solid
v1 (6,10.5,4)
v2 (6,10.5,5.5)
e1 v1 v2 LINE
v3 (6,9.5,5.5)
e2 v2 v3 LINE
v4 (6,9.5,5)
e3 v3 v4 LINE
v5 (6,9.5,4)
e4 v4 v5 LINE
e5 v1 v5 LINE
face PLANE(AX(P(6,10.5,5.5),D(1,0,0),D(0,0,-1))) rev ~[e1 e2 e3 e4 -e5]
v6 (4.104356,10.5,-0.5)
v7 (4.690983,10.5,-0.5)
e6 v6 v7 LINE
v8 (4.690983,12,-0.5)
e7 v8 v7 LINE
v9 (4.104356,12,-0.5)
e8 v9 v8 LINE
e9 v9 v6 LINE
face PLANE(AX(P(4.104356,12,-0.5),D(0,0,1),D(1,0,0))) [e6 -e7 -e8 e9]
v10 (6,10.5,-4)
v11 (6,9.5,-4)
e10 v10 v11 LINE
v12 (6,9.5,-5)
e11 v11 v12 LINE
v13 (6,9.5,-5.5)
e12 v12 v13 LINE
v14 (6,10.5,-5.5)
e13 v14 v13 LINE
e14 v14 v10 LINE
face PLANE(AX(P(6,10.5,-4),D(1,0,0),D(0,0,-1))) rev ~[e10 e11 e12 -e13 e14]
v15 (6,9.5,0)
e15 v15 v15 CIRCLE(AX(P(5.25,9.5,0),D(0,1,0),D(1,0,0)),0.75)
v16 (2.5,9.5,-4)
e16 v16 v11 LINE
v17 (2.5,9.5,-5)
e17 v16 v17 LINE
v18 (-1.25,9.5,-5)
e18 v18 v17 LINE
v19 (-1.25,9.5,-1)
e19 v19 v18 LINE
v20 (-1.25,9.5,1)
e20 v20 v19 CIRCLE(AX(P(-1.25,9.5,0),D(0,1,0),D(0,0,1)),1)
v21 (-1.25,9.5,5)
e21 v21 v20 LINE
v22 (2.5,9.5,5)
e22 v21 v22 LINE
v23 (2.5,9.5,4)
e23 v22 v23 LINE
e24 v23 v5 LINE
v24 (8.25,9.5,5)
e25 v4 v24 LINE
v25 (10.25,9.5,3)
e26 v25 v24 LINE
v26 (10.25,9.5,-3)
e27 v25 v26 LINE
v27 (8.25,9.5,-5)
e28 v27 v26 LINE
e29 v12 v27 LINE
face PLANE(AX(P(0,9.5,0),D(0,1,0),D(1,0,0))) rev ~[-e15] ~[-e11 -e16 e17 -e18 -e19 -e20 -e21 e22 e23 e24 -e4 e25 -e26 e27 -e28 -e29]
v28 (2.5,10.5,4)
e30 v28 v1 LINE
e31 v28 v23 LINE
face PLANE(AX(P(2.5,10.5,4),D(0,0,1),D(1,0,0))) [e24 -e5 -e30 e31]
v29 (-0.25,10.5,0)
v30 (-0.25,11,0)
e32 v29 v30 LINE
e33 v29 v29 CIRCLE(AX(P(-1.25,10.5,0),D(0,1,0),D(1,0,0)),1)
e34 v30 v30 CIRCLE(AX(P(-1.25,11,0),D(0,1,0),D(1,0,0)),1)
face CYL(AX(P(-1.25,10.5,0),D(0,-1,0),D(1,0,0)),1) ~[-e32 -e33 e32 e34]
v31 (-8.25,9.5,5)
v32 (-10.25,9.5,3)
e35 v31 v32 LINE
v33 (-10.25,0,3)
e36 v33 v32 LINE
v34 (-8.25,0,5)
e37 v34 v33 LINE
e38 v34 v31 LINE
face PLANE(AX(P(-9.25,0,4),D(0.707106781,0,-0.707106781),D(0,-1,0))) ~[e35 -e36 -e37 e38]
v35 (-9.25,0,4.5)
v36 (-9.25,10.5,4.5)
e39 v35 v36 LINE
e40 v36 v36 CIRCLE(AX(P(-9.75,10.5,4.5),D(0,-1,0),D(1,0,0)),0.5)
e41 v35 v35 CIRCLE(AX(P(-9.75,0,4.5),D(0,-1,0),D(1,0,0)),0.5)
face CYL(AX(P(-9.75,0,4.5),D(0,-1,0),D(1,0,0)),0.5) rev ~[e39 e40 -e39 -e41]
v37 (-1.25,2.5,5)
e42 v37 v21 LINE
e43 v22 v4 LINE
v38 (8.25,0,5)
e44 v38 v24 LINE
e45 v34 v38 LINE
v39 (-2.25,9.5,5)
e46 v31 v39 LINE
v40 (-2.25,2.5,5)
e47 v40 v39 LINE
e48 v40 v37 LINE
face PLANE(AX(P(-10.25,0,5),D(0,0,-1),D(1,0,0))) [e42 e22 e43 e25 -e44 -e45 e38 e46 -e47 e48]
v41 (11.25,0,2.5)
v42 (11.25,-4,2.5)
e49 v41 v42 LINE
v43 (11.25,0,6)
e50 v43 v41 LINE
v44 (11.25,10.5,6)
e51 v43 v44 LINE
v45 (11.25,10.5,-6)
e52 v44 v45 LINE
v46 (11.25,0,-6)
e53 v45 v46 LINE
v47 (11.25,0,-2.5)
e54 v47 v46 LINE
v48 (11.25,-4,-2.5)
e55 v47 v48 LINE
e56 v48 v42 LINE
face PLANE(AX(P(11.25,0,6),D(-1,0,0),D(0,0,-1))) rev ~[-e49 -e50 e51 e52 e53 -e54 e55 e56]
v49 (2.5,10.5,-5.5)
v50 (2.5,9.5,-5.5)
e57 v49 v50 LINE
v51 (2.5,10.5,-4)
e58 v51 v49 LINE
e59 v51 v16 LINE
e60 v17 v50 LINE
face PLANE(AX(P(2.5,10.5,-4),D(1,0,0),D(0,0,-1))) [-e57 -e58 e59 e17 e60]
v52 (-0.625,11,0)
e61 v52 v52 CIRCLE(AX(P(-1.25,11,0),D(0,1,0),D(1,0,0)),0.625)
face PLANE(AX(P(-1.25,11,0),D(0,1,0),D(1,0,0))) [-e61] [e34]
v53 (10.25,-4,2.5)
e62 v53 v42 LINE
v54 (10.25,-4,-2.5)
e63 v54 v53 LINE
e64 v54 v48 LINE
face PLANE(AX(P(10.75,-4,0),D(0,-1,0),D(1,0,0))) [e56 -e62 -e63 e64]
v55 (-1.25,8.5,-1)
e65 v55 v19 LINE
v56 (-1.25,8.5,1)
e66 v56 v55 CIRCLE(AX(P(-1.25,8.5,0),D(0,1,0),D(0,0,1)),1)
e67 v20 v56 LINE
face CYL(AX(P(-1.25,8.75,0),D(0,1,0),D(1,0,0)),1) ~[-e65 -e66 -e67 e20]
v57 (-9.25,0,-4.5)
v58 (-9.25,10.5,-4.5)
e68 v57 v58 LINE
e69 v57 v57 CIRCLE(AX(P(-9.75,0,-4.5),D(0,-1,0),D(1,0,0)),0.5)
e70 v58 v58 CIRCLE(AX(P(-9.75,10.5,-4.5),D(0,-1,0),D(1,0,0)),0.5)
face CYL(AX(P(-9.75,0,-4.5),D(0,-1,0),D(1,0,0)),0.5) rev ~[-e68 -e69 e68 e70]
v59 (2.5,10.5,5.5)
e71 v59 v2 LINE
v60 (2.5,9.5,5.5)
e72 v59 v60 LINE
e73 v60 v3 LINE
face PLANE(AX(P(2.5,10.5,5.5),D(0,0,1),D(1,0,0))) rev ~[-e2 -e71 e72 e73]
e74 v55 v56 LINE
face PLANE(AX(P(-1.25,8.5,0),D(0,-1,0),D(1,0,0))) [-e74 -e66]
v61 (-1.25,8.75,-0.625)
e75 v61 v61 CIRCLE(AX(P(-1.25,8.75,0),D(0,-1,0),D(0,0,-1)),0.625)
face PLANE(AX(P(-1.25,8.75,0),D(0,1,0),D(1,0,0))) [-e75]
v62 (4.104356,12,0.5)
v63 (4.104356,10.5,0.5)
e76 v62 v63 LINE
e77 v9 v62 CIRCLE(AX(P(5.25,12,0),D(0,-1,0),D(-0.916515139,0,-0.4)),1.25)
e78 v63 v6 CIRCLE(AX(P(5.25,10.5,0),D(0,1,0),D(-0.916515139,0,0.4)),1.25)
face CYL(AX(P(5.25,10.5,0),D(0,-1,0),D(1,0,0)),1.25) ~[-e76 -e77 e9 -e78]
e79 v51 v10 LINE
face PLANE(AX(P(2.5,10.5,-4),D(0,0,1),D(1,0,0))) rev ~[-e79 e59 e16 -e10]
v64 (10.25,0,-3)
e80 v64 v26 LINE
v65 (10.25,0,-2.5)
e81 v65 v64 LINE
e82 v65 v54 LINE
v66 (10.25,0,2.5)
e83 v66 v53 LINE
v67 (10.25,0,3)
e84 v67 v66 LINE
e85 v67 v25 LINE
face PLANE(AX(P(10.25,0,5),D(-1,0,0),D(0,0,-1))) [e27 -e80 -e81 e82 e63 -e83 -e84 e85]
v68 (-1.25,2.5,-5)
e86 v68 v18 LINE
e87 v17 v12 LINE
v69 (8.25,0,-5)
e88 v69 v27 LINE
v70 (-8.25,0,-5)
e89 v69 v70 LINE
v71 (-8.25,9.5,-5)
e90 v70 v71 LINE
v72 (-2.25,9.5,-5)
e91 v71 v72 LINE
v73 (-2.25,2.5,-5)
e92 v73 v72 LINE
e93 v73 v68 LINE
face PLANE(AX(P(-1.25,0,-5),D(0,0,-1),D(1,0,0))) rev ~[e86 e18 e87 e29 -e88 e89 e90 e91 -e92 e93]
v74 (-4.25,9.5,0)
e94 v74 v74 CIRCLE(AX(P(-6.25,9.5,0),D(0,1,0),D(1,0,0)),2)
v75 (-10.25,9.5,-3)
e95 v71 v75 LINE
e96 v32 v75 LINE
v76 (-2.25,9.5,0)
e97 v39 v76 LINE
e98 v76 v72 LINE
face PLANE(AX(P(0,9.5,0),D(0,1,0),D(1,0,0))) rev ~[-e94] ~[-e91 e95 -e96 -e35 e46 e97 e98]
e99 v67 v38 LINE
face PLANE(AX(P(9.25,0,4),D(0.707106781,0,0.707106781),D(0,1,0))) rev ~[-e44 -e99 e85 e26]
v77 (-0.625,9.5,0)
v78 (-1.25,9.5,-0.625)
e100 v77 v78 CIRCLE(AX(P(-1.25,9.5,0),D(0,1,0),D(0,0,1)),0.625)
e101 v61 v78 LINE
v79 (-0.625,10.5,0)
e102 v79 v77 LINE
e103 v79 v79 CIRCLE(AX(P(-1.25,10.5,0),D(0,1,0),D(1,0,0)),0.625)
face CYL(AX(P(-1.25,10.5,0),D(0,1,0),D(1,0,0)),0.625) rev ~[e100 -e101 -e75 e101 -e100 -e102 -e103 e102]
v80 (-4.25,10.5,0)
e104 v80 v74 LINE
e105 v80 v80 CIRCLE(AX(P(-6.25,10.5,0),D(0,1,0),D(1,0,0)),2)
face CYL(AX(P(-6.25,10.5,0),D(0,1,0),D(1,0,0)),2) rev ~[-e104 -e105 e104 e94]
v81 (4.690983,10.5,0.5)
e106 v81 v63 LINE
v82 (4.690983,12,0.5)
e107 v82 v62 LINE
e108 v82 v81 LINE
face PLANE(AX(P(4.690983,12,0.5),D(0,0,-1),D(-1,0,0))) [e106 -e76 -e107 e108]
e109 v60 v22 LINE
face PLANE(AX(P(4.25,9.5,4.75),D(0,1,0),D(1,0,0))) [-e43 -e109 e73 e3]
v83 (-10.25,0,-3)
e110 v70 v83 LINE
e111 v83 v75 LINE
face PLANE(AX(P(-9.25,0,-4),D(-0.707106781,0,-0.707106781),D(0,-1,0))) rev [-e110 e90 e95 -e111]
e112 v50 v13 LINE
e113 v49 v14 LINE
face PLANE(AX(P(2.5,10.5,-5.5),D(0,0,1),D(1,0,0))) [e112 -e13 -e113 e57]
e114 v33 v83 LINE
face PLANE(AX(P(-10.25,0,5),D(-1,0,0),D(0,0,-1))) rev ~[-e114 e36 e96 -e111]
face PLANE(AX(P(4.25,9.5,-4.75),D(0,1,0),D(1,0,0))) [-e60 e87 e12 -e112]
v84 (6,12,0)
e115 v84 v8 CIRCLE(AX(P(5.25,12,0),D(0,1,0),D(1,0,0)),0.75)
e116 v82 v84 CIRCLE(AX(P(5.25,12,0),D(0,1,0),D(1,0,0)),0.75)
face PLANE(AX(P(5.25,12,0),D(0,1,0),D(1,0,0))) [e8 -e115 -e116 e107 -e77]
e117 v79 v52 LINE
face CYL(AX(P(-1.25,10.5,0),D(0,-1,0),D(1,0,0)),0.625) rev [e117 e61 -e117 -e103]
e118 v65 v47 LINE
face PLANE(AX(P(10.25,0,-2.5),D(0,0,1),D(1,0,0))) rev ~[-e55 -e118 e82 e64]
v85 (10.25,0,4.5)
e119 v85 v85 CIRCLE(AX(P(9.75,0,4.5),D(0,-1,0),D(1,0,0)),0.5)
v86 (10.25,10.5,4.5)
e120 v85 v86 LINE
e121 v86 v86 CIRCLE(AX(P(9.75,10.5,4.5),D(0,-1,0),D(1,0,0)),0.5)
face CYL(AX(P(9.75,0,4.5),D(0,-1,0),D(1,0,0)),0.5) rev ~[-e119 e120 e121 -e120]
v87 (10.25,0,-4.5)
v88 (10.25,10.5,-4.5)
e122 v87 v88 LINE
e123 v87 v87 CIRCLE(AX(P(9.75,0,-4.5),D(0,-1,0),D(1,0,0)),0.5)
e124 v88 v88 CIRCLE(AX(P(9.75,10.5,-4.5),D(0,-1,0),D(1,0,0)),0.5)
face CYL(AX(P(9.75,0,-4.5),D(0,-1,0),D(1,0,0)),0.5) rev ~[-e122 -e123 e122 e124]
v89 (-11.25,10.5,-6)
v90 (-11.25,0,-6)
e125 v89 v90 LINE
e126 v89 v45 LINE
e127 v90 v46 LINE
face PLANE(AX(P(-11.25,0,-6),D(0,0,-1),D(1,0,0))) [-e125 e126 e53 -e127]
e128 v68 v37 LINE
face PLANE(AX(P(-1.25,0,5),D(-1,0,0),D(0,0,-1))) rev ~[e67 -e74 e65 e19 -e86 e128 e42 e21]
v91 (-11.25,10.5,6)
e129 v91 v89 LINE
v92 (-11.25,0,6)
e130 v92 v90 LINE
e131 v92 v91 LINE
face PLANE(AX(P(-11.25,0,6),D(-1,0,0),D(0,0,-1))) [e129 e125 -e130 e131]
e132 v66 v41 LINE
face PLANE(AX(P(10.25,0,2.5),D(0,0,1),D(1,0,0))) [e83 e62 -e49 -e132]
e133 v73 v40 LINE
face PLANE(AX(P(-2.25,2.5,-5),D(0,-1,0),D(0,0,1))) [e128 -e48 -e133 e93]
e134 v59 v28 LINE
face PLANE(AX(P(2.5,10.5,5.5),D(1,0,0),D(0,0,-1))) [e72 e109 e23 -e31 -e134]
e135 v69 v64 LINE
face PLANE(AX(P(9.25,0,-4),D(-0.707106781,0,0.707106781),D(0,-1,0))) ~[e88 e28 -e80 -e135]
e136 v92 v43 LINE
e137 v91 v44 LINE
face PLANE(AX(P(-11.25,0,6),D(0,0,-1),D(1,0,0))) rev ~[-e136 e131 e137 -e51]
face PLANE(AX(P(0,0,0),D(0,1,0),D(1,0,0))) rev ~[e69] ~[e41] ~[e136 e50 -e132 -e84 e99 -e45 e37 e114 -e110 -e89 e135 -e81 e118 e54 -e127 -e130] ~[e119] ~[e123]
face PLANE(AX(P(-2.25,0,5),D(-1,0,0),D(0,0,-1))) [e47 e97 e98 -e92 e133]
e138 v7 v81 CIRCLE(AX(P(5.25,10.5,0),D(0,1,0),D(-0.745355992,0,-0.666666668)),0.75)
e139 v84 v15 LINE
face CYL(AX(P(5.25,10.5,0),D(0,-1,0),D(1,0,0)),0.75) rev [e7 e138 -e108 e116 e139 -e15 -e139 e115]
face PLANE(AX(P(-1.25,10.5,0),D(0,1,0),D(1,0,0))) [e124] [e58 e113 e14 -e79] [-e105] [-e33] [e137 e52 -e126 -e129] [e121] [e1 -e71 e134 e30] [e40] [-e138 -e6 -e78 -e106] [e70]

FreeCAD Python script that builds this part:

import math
import FreeCAD as App
import Part
import Sketcher


def edges_at(feature, points):
    """Names of the edges that pass closest to the given points."""
    edges = feature.Shape.Edges
    near = lambda p: min(range(len(edges)), key=lambda i: edges[i].distToShape(Part.Vertex(*p))[0])
    return sorted({f"Edge{near(p) + 1}" for p in points})

doc = App.newDocument("Part")
params = doc.addObject("Spreadsheet::Sheet", "Params")
for row, (alias, value) in enumerate([
    ("sketch1_width", "8 mm"),
    ("sketch1_height", "12 mm"),
    ("sketch1_height2", "10 mm"),
    ("sketch1_width2", "22.5 mm"),
    ("sketch1_width3", "11.5 mm"),
    ("pad1_length", "10.5 mm"),
    ("sketch2_diameter", "4 mm"),
    ("sketch2_diameter2", "1.5 mm"),
    ("sketch2_height", "12 mm"),
    ("sketch2_width", "22.5 mm"),
    ("sketch2_width2", "3.5 mm"),
    ("pad2_length", "1 mm"),
    ("sketch3_width", "3.5 mm"),
    ("sketch3_height", "1.5 mm"),
    ("pocket1_length", "1 mm"),
    ("sketch4_height", "10 mm"),
    ("sketch4_width", "2.5 mm"),
    ("pocket2_length", "1 mm"),
    ("chamfer_size", "2 mm"),
    ("sketch5_diameter", "1 mm"),
    ("sketch6_width", "1 mm"),
    ("sketch6_height", "5 mm"),
    ("pad3_length", "4 mm"),
    ("sketch7_diameter", "2 mm"),
    ("sketch7_diameter2", "1.25 mm"),
    ("pad4_length", "1.75 mm"),
    ("sketch8_diameter", "1.25 mm"),
    ("pocket4_length", "1.75 mm"),
    ("sketch9_diameter", "2 mm"),
    ("pad5_length", "0.25 mm"),
    ("sketch10_diameter", "2 mm"),
    ("sketch10_diameter2", "1.25 mm"),
    ("pad6_length", "0.5 mm"),
    ("sketch11_diameter", "2.5 mm"),
    ("sketch11_diameter2", "1.5 mm"),
    ("pad7_length", "1.5 mm"),
    ("sketch12_radius", "1.25 mm"),
    ("sketch12_radius2", "0.75 mm"),
    ("pocket5_length", "1.5 mm"),
], start=1):
    params.set(f"A{row}", alias)
    params.set(f"B{row}", "=" + value)
    params.setAlias(f"B{row}", alias)

body = doc.addObject("PartDesign::Body", "Body")

# Sketch on XZ plane
sketch1 = doc.addObject("Sketcher::SketchObject", "Sketch")
body.addObject(sketch1)
sketch1.AttachmentSupport = (doc.XZ_Plane, [""])
sketch1.MapMode = "FlatFace"
sketch1.addGeometry(Part.LineSegment(App.Vector(-11, -6, 0), App.Vector(-11, 6, 0)), False)
sketch1.addGeometry(Part.LineSegment(App.Vector(-11, 6, 0), App.Vector(11, 6, 0)), False)
sketch1.addGeometry(Part.LineSegment(App.Vector(11, 6, 0), App.Vector(11, -6, 0)), False)
sketch1.addGeometry(Part.LineSegment(App.Vector(11, -6, 0), App.Vector(-11, -6, 0)), False)
sketch1.addGeometry(Part.LineSegment(App.Vector(-2, 5, 0), App.Vector(-10, 5, 0)), False)
sketch1.addGeometry(Part.LineSegment(App.Vector(-10, 5, 0), App.Vector(-10, -5, 0)), False)
sketch1.addGeometry(Part.LineSegment(App.Vector(-10, -5, 0), App.Vector(-2, -5, 0)), False)
sketch1.addGeometry(Part.LineSegment(App.Vector(-2, -5, 0), App.Vector(-2, 5, 0)), False)
sketch1.addGeometry(Part.LineSegment(App.Vector(10, 5, 0), App.Vector(-1, 5, 0)), False)
sketch1.addGeometry(Part.LineSegment(App.Vector(-1, 5, 0), App.Vector(-1, -5, 0)), False)
sketch1.addGeometry(Part.LineSegment(App.Vector(-1, -5, 0), App.Vector(10, -5, 0)), False)
sketch1.addGeometry(Part.LineSegment(App.Vector(10, -5, 0), App.Vector(10, 5, 0)), False)
sketch1.addConstraint(Sketcher.Constraint("Coincident", 0, 2, 1, 1))
sketch1.addConstraint(Sketcher.Constraint("Coincident", 1, 2, 2, 1))
sketch1.addConstraint(Sketcher.Constraint("Coincident", 2, 2, 3, 1))
sketch1.addConstraint(Sketcher.Constraint("Coincident", 3, 2, 0, 1))
sketch1.addConstraint(Sketcher.Constraint("Coincident", 4, 2, 5, 1))
sketch1.addConstraint(Sketcher.Constraint("Coincident", 5, 2, 6, 1))
sketch1.addConstraint(Sketcher.Constraint("Coincident", 6, 2, 7, 1))
sketch1.addConstraint(Sketcher.Constraint("Coincident", 7, 2, 4, 1))
sketch1.addConstraint(Sketcher.Constraint("Coincident", 8, 2, 9, 1))
sketch1.addConstraint(Sketcher.Constraint("Coincident", 9, 2, 10, 1))
sketch1.addConstraint(Sketcher.Constraint("Coincident", 10, 2, 11, 1))
sketch1.addConstraint(Sketcher.Constraint("Coincident", 11, 2, 8, 1))
sketch1.addConstraint(Sketcher.Constraint("Vertical", 0))
sketch1.addConstraint(Sketcher.Constraint("Horizontal", 1))
sketch1.addConstraint(Sketcher.Constraint("Vertical", 2))
sketch1.addConstraint(Sketcher.Constraint("Horizontal", 3))
sketch1.addConstraint(Sketcher.Constraint("Horizontal", 4))
sketch1.addConstraint(Sketcher.Constraint("Vertical", 5))
sketch1.addConstraint(Sketcher.Constraint("Horizontal", 6))
sketch1.addConstraint(Sketcher.Constraint("Vertical", 7))
sketch1.addConstraint(Sketcher.Constraint("Horizontal", 8))
sketch1.addConstraint(Sketcher.Constraint("Vertical", 9))
sketch1.addConstraint(Sketcher.Constraint("Horizontal", 10))
sketch1.addConstraint(Sketcher.Constraint("Vertical", 11))
sketch1.addConstraint(Sketcher.Constraint("Symmetric", 0, 2, 2, 2, -1, 1))
sketch1.addConstraint(Sketcher.Constraint("Symmetric", 4, 2, 10, 2, -1, 1))
sketch1.addConstraint(Sketcher.Constraint("Horizontal", 7, 2, 8, 2))
sketch1.addConstraint(Sketcher.Constraint("Horizontal", 6, 2, 9, 2))
sketch1.addConstraint(Sketcher.Constraint("DistanceX", 4, 2, 4, 1, 8.0))
sketch1.addConstraint(Sketcher.Constraint("DistanceY", 0, 1, 0, 2, 12.0))
sketch1.addConstraint(Sketcher.Constraint("DistanceY", 5, 2, 5, 1, 10.0))
sketch1.addConstraint(Sketcher.Constraint("DistanceX", 1, 1, 1, 2, 22.5))
sketch1.addConstraint(Sketcher.Constraint("DistanceX", 8, 2, 8, 1, 11.5))
sketch1.addConstraint(Sketcher.Constraint("DistanceX", 0, 2, 4, 2, 1.0))
sketch1.setExpression("Constraints[28]", "Params.sketch1_width")
sketch1.setExpression("Constraints[29]", "Params.sketch1_height")
sketch1.setExpression("Constraints[30]", "Params.sketch1_height2")
sketch1.setExpression("Constraints[31]", "Params.sketch1_width2")
sketch1.setExpression("Constraints[32]", "Params.sketch1_width3")
pad1 = doc.addObject("PartDesign::Pad", "Pad")
body.addObject(pad1)
pad1.Profile = sketch1
pad1.setExpression("Length", "Params.pad1_length")
pad1.Reversed = True

# Sketch on XZ plane
sketch2 = doc.addObject("Sketcher::SketchObject", "Sketch001")
body.addObject(sketch2)
sketch2.AttachmentSupport = (doc.XZ_Plane, [""])
sketch2.MapMode = "FlatFace"
sketch2.AttachmentOffset = App.Placement(App.Vector(0, 0, -10.5), App.Rotation())
sketch2.addGeometry(Part.LineSegment(App.Vector(-11.2, -6, 0), App.Vector(-11.2, 6, 0)), False)
sketch2.addGeometry(Part.LineSegment(App.Vector(-11.2, 6, 0), App.Vector(11.2, 6, 0)), False)
sketch2.addGeometry(Part.LineSegment(App.Vector(11.2, 6, 0), App.Vector(11.2, -6, 0)), False)
sketch2.addGeometry(Part.LineSegment(App.Vector(11.2, -6, 0), App.Vector(-11.2, -6, 0)), False)
sketch2.addGeometry(Part.LineSegment(App.Vector(6, 5.5, 0), App.Vector(2.5, 5.5, 0)), False)
sketch2.addGeometry(Part.LineSegment(App.Vector(2.5, 5.5, 0), App.Vector(2.5, 4, 0)), False)
sketch2.addGeometry(Part.LineSegment(App.Vector(2.5, 4, 0), App.Vector(6, 4, 0)), False)
sketch2.addGeometry(Part.LineSegment(App.Vector(6, 4, 0), App.Vector(6, 5.5, 0)), False)
sketch2.addGeometry(Part.Circle(App.Vector(-6.2, 0, 0), App.Vector(0, 0, 1), 2), False)
sketch2.addGeometry(Part.Circle(App.Vector(5.2, 0, 0), App.Vector(0, 0, 1), 0.8), False)
sketch2.addGeometry(Part.LineSegment(App.Vector(6, -4, 0), App.Vector(2.5, -4, 0)), False)
sketch2.addGeometry(Part.LineSegment(App.Vector(2.5, -4, 0), App.Vector(2.5, -5.5, 0)), False)
sketch2.addGeometry(Part.LineSegment(App.Vector(2.5, -5.5, 0), App.Vector(6, -5.5, 0)), False)
sketch2.addGeometry(Part.LineSegment(App.Vector(6, -5.5, 0), App.Vector(6, -4, 0)), False)
sketch2.addConstraint(Sketcher.Constraint("Coincident", 0, 2, 1, 1))
sketch2.addConstraint(Sketcher.Constraint("Coincident", 1, 2, 2, 1))
sketch2.addConstraint(Sketcher.Constraint("Coincident", 2, 2, 3, 1))
sketch2.addConstraint(Sketcher.Constraint("Coincident", 3, 2, 0, 1))
sketch2.addConstraint(Sketcher.Constraint("Coincident", 4, 2, 5, 1))
sketch2.addConstraint(Sketcher.Constraint("Coincident", 5, 2, 6, 1))
sketch2.addConstraint(Sketcher.Constraint("Coincident", 6, 2, 7, 1))
sketch2.addConstraint(Sketcher.Constraint("Coincident", 7, 2, 4, 1))
sketch2.addConstraint(Sketcher.Constraint("Coincident", 10, 2, 11, 1))
sketch2.addConstraint(Sketcher.Constraint("Coincident", 11, 2, 12, 1))
sketch2.addConstraint(Sketcher.Constraint("Coincident", 12, 2, 13, 1))
sketch2.addConstraint(Sketcher.Constraint("Coincident", 13, 2, 10, 1))
sketch2.addConstraint(Sketcher.Constraint("Vertical", 0))
sketch2.addConstraint(Sketcher.Constraint("Horizontal", 1))
sketch2.addConstraint(Sketcher.Constraint("Vertical", 2))
sketch2.addConstraint(Sketcher.Constraint("Horizontal", 3))
sketch2.addConstraint(Sketcher.Constraint("Horizontal", 4))
sketch2.addConstraint(Sketcher.Constraint("Vertical", 5))
sketch2.addConstraint(Sketcher.Constraint("Horizontal", 6))
sketch2.addConstraint(Sketcher.Constraint("Vertical", 7))
sketch2.addConstraint(Sketcher.Constraint("Horizontal", 10))
sketch2.addConstraint(Sketcher.Constraint("Vertical", 11))
sketch2.addConstraint(Sketcher.Constraint("Horizontal", 12))
sketch2.addConstraint(Sketcher.Constraint("Vertical", 13))
sketch2.addConstraint(Sketcher.Constraint("Symmetric", 0, 2, 2, 2, -1, 1))
sketch2.addConstraint(Sketcher.Constraint("Symmetric", 5, 2, 10, 2, -1))
sketch2.addConstraint(Sketcher.Constraint("Symmetric", 7, 2, 12, 2, -1))
sketch2.addConstraint(Sketcher.Constraint("PointOnObject", 8, 3, -1))
sketch2.addConstraint(Sketcher.Constraint("PointOnObject", 9, 3, -1))
sketch2.addConstraint(Sketcher.Constraint("Diameter", 8, 4.0))
sketch2.addConstraint(Sketcher.Constraint("Diameter", 9, 1.5))
sketch2.addConstraint(Sketcher.Constraint("DistanceY", 0, 1, 0, 2, 12.0))
sketch2.addConstraint(Sketcher.Constraint("DistanceX", 1, 1, 1, 2, 22.5))
sketch2.addConstraint(Sketcher.Constraint("DistanceX", 4, 2, 4, 1, 3.5))
sketch2.addConstraint(Sketcher.Constraint("DistanceY", 5, 2, 5, 1, 1.5))
sketch2.addConstraint(Sketcher.Constraint("DistanceY", -1, 1, 5, 2, 4.0))
sketch2.addConstraint(Sketcher.Constraint("DistanceX", -1, 1, 6, 2, 6.0))
sketch2.addConstraint(Sketcher.Constraint("DistanceX", 0, 2, 8, 3, 5.0))
sketch2.addConstraint(Sketcher.Constraint("DistanceX", 9, 3, 1, 2, 6.0))
sketch2.setExpression("Constraints[29]", "Params.sketch2_diameter")
sketch2.setExpression("Constraints[30]", "Params.sketch2_diameter2")
sketch2.setExpression("Constraints[31]", "Params.sketch2_height")
sketch2.setExpression("Constraints[32]", "Params.sketch2_width")
sketch2.setExpression("Constraints[33]", "Params.sketch2_width2")
pad2 = doc.addObject("PartDesign::Pad", "Pad001")
body.addObject(pad2)
pad2.Profile = sketch2
pad2.setExpression("Length", "Params.pad2_length")

# Sketch on XZ plane
sketch3 = doc.addObject("Sketcher::SketchObject", "Sketch002")
body.addObject(sketch3)
sketch3.AttachmentSupport = (doc.XZ_Plane, [""])
sketch3.MapMode = "FlatFace"
sketch3.AttachmentOffset = App.Placement(App.Vector(0, 0, -10.5), App.Rotation())
sketch3.addGeometry(Part.LineSegment(App.Vector(2.5, -5.5, 0), App.Vector(2.5, -4, 0)), False)
sketch3.addGeometry(Part.LineSegment(App.Vector(2.5, -4, 0), App.Vector(6, -4, 0)), False)
sketch3.addGeometry(Part.LineSegment(App.Vector(6, -4, 0), App.Vector(6, -5.5, 0)), False)
sketch3.addGeometry(Part.LineSegment(App.Vector(6, -5.5, 0), App.Vector(2.5, -5.5, 0)), False)
sketch3.addGeometry(Part.LineSegment(App.Vector(2.5, 4, 0), App.Vector(2.5, 5.5, 0)), False)
sketch3.addGeometry(Part.LineSegment(App.Vector(2.5, 5.5, 0), App.Vector(6, 5.5, 0)), False)
sketch3.addGeometry(Part.LineSegment(App.Vector(6, 5.5, 0), App.Vector(6, 4, 0)), False)
sketch3.addGeometry(Part.LineSegment(App.Vector(6, 4, 0), App.Vector(2.5, 4, 0)), False)
sketch3.addConstraint(Sketcher.Constraint("Coincident", 0, 2, 1, 1))
sketch3.addConstraint(Sketcher.Constraint("Coincident", 1, 2, 2, 1))
sketch3.addConstraint(Sketcher.Constraint("Coincident", 2, 2, 3, 1))
sketch3.addConstraint(Sketcher.Constraint("Coincident", 3, 2, 0, 1))
sketch3.addConstraint(Sketcher.Constraint("Coincident", 4, 2, 5, 1))
sketch3.addConstraint(Sketcher.Constraint("Coincident", 5, 2, 6, 1))
sketch3.addConstraint(Sketcher.Constraint("Coincident", 6, 2, 7, 1))
sketch3.addConstraint(Sketcher.Constraint("Coincident", 7, 2, 4, 1))
sketch3.addConstraint(Sketcher.Constraint("Vertical", 0))
sketch3.addConstraint(Sketcher.Constraint("Horizontal", 1))
sketch3.addConstraint(Sketcher.Constraint("Vertical", 2))
sketch3.addConstraint(Sketcher.Constraint("Horizontal", 3))
sketch3.addConstraint(Sketcher.Constraint("Vertical", 4))
sketch3.addConstraint(Sketcher.Constraint("Horizontal", 5))
sketch3.addConstraint(Sketcher.Constraint("Vertical", 6))
sketch3.addConstraint(Sketcher.Constraint("Horizontal", 7))
sketch3.addConstraint(Sketcher.Constraint("Symmetric", 3, 2, 4, 2, -1))
sketch3.addConstraint(Sketcher.Constraint("Symmetric", 1, 2, 6, 2, -1))
sketch3.addConstraint(Sketcher.Constraint("DistanceX", 1, 1, 1, 2, 3.5))
sketch3.addConstraint(Sketcher.Constraint("DistanceY", 0, 1, 0, 2, 1.5))
sketch3.addConstraint(Sketcher.Constraint("DistanceY", 0, 2, -1, 1, 4.0))
sketch3.addConstraint(Sketcher.Constraint("DistanceX", -1, 1, 1, 2, 6.0))
sketch3.setExpression("Constraints[18]", "Params.sketch3_width")
sketch3.setExpression("Constraints[19]", "Params.sketch3_height")
pocket1 = doc.addObject("PartDesign::Pocket", "Pocket")
body.addObject(pocket1)
pocket1.Profile = sketch3
pocket1.setExpression("Length", "Params.pocket1_length")
pocket1.Reversed = True

# Sketch on YZ plane
sketch4 = doc.addObject("Sketcher::SketchObject", "Sketch003")
body.addObject(sketch4)
sketch4.AttachmentSupport = (doc.YZ_Plane, [""])
sketch4.MapMode = "FlatFace"
sketch4.AttachmentOffset = App.Placement(App.Vector(0, 0, -2.25), App.Rotation())
sketch4.addGeometry(Part.LineSegment(App.Vector(2.5, -5, 0), App.Vector(0, -5, 0)), False)
sketch4.addGeometry(Part.LineSegment(App.Vector(0, -5, 0), App.Vector(0, 5, 0)), False)
sketch4.addGeometry(Part.LineSegment(App.Vector(0, 5, 0), App.Vector(2.5, 5, 0)), False)
sketch4.addGeometry(Part.LineSegment(App.Vector(2.5, 5, 0), App.Vector(2.5, -5, 0)), False)
sketch4.addConstraint(Sketcher.Constraint("Coincident", 0, 2, 1, 1))
sketch4.addConstraint(Sketcher.Constraint("Coincident", 1, 2, 2, 1))
sketch4.addConstraint(Sketcher.Constraint("Coincident", 2, 2, 3, 1))
sketch4.addConstraint(Sketcher.Constraint("Coincident", 3, 2, 0, 1))
sketch4.addConstraint(Sketcher.Constraint("Horizontal", 0))
sketch4.addConstraint(Sketcher.Constraint("Vertical", 1))
sketch4.addConstraint(Sketcher.Constraint("Horizontal", 2))
sketch4.addConstraint(Sketcher.Constraint("Vertical", 3))
sketch4.addConstraint(Sketcher.Constraint("Symmetric", 0, 2, 1, 2, -1, 1))
sketch4.addConstraint(Sketcher.Constraint("DistanceY", 1, 1, 1, 2, 10.0))
sketch4.addConstraint(Sketcher.Constraint("DistanceX", 0, 2, 0, 1, 2.5))
sketch4.setExpression("Constraints[9]", "Params.sketch4_height")
sketch4.setExpression("Constraints[10]", "Params.sketch4_width")
pocket2 = doc.addObject("PartDesign::Pocket", "Pocket001")
body.addObject(pocket2)
pocket2.Profile = sketch4
pocket2.setExpression("Length", "Params.pocket2_length")
pocket2.Reversed = True
doc.recompute()

chamfer = doc.addObject("PartDesign::Chamfer", "Chamfer")
body.addObject(chamfer)
chamfer.Base = (pocket2, edges_at(pocket2, [
    (-10.25, 4.75, 5),
    (-10.25, 4.75, -5),
    (10.25, 4.75, -5),
    (10.25, 4.75, 5),
]))
chamfer.setExpression("Size", "Params.chamfer_size")

# Sketch on XZ plane
sketch5 = doc.addObject("Sketcher::SketchObject", "Sketch004")
body.addObject(sketch5)
sketch5.AttachmentSupport = (doc.XZ_Plane, [""])
sketch5.MapMode = "FlatFace"
sketch5.addGeometry(Part.Circle(App.Vector(-9.8, 4.5, 0), App.Vector(0, 0, 1), 0.5), False)
sketch5.addGeometry(Part.Circle(App.Vector(9.8, 4.5, 0), App.Vector(0, 0, 1), 0.5), False)
sketch5.addGeometry(Part.Circle(App.Vector(9.8, -4.5, 0), App.Vector(0, 0, 1), 0.5), False)
sketch5.addGeometry(Part.Circle(App.Vector(-9.8, -4.5, 0), App.Vector(0, 0, 1), 0.5), False)
sketch5.addConstraint(Sketcher.Constraint("Equal", 0, 1))
sketch5.addConstraint(Sketcher.Constraint("Equal", 1, 2))
sketch5.addConstraint(Sketcher.Constraint("Equal", 2, 3))
sketch5.addConstraint(Sketcher.Constraint("Symmetric", 0, 3, 2, 3, -1, 1))
sketch5.addConstraint(Sketcher.Constraint("Symmetric", 1, 3, 3, 3, -1, 1))
sketch5.addConstraint(Sketcher.Constraint("Symmetric", 0, 3, 1, 3, -2))
sketch5.addConstraint(Sketcher.Constraint("Diameter", 0, 1.0))
sketch5.addConstraint(Sketcher.Constraint("DistanceY", 2, 3, 1, 3, 9.0))
sketch5.addConstraint(Sketcher.Constraint("DistanceX", 0, 3, 1, 3, 19.5))
sketch5.setExpression("Constraints[6]", "Params.sketch5_diameter")
pocket3 = doc.addObject("PartDesign::Pocket", "Pocket002")
body.addObject(pocket3)
pocket3.Profile = sketch5
pocket3.Type = "ThroughAll"

# Sketch on XZ plane
sketch6 = doc.addObject("Sketcher::SketchObject", "Sketch005")
body.addObject(sketch6)
sketch6.AttachmentSupport = (doc.XZ_Plane, [""])
sketch6.MapMode = "FlatFace"
sketch6.addGeometry(Part.LineSegment(App.Vector(10.2, 2.5, 0), App.Vector(10.2, -2.5, 0)), False)
sketch6.addGeometry(Part.LineSegment(App.Vector(10.2, -2.5, 0), App.Vector(11.2, -2.5, 0)), False)
sketch6.addGeometry(Part.LineSegment(App.Vector(11.2, -2.5, 0), App.Vector(11.2, 2.5, 0)), False)
sketch6.addGeometry(Part.LineSegment(App.Vector(11.2, 2.5, 0), App.Vector(10.2, 2.5, 0)), False)
sketch6.addConstraint(Sketcher.Constraint("Coincident", 0, 2, 1, 1))
sketch6.addConstraint(Sketcher.Constraint("Coincident", 1, 2, 2, 1))
sketch6.addConstraint(Sketcher.Constraint("Coincident", 2, 2, 3, 1))
sketch6.addConstraint(Sketcher.Constraint("Coincident", 3, 2, 0, 1))
sketch6.addConstraint(Sketcher.Constraint("Vertical", 0))
sketch6.addConstraint(Sketcher.Constraint("Horizontal", 1))
sketch6.addConstraint(Sketcher.Constraint("Vertical", 2))
sketch6.addConstraint(Sketcher.Constraint("Horizontal", 3))
sketch6.addConstraint(Sketcher.Constraint("DistanceX", 1, 1, 1, 2, 1.0))
sketch6.addConstraint(Sketcher.Constraint("DistanceY", 0, 2, 0, 1, 5.0))
sketch6.addConstraint(Sketcher.Constraint("DistanceY", 0, 2, -1, 1, 2.5))
sketch6.addConstraint(Sketcher.Constraint("DistanceX", -1, 1, 0, 2, 10.25))
sketch6.setExpression("Constraints[8]", "Params.sketch6_width")
sketch6.setExpression("Constraints[9]", "Params.sketch6_height")
pad3 = doc.addObject("PartDesign::Pad", "Pad002")
body.addObject(pad3)
pad3.Profile = sketch6
pad3.setExpression("Length", "Params.pad3_length")

# Sketch on XZ plane
sketch7 = doc.addObject("Sketcher::SketchObject", "Sketch006")
body.addObject(sketch7)
sketch7.AttachmentSupport = (doc.XZ_Plane, [""])
sketch7.MapMode = "FlatFace"
sketch7.AttachmentOffset = App.Placement(App.Vector(0, 0, -10.5), App.Rotation())
sketch7.addGeometry(Part.Circle(App.Vector(-1.2, 0, 0), App.Vector(0, 0, 1), 1), False)
sketch7.addGeometry(Part.Circle(App.Vector(-1.2, 0, 0), App.Vector(0, 0, 1), 0.6), False)
sketch7.addConstraint(Sketcher.Constraint("Coincident", 1, 3, 0, 3))
sketch7.addConstraint(Sketcher.Constraint("PointOnObject", 0, 3, -1))
sketch7.addConstraint(Sketcher.Constraint("Diameter", 0, 2.0))
sketch7.addConstraint(Sketcher.Constraint("Diameter", 1, 1.25))
sketch7.addConstraint(Sketcher.Constraint("DistanceX", 0, 3, -1, 1, 1.25))
sketch7.setExpression("Constraints[2]", "Params.sketch7_diameter")
sketch7.setExpression("Constraints[3]", "Params.sketch7_diameter2")
pad4 = doc.addObject("PartDesign::Pad", "Pad003")
body.addObject(pad4)
pad4.Profile = sketch7
pad4.setExpression("Length", "Params.pad4_length")

# Sketch on XZ plane
sketch8 = doc.addObject("Sketcher::SketchObject", "Sketch007")
body.addObject(sketch8)
sketch8.AttachmentSupport = (doc.XZ_Plane, [""])
sketch8.MapMode = "FlatFace"
sketch8.AttachmentOffset = App.Placement(App.Vector(0, 0, -10.5), App.Rotation())
sketch8.addGeometry(Part.Circle(App.Vector(-1.2, 0, 0), App.Vector(0, 0, 1), 0.6), False)
sketch8.addConstraint(Sketcher.Constraint("PointOnObject", 0, 3, -1))
sketch8.addConstraint(Sketcher.Constraint("Diameter", 0, 1.25))
sketch8.addConstraint(Sketcher.Constraint("DistanceX", 0, 3, -1, 1, 1.25))
sketch8.setExpression("Constraints[1]", "Params.sketch8_diameter")
pocket4 = doc.addObject("PartDesign::Pocket", "Pocket003")
body.addObject(pocket4)
pocket4.Profile = sketch8
pocket4.setExpression("Length", "Params.pocket4_length")
pocket4.Reversed = True

# Sketch on XZ plane
sketch9 = doc.addObject("Sketcher::SketchObject", "Sketch008")
body.addObject(sketch9)
sketch9.AttachmentSupport = (doc.XZ_Plane, [""])
sketch9.MapMode = "FlatFace"
sketch9.AttachmentOffset = App.Placement(App.Vector(0, 0, -8.75), App.Rotation())
sketch9.addGeometry(Part.Circle(App.Vector(-1.2, 0, 0), App.Vector(0, 0, 1), 1), False)
sketch9.addConstraint(Sketcher.Constraint("PointOnObject", 0, 3, -1))
sketch9.addConstraint(Sketcher.Constraint("Diameter", 0, 2.0))
sketch9.addConstraint(Sketcher.Constraint("DistanceX", 0, 3, -1, 1, 1.25))
sketch9.setExpression("Constraints[1]", "Params.sketch9_diameter")
pad5 = doc.addObject("PartDesign::Pad", "Pad004")
body.addObject(pad5)
pad5.Profile = sketch9
pad5.setExpression("Length", "Params.pad5_length")

# Sketch on XZ plane
sketch10 = doc.addObject("Sketcher::SketchObject", "Sketch009")
body.addObject(sketch10)
sketch10.AttachmentSupport = (doc.XZ_Plane, [""])
sketch10.MapMode = "FlatFace"
sketch10.AttachmentOffset = App.Placement(App.Vector(0, 0, -10.5), App.Rotation())
sketch10.addGeometry(Part.Circle(App.Vector(-1.2, 0, 0), App.Vector(0, 0, 1), 1), False)
sketch10.addGeometry(Part.Circle(App.Vector(-1.2, 0, 0), App.Vector(0, 0, 1), 0.6), False)
sketch10.addConstraint(Sketcher.Constraint("Coincident", 1, 3, 0, 3))
sketch10.addConstraint(Sketcher.Constraint("PointOnObject", 0, 3, -1))
sketch10.addConstraint(Sketcher.Constraint("Diameter", 0, 2.0))
sketch10.addConstraint(Sketcher.Constraint("Diameter", 1, 1.25))
sketch10.addConstraint(Sketcher.Constraint("DistanceX", 0, 3, -1, 1, 1.25))
sketch10.setExpression("Constraints[2]", "Params.sketch10_diameter")
sketch10.setExpression("Constraints[3]", "Params.sketch10_diameter2")
pad6 = doc.addObject("PartDesign::Pad", "Pad005")
body.addObject(pad6)
pad6.Profile = sketch10
pad6.setExpression("Length", "Params.pad6_length")
pad6.Reversed = True

# Sketch on XZ plane
sketch11 = doc.addObject("Sketcher::SketchObject", "Sketch010")
body.addObject(sketch11)
sketch11.AttachmentSupport = (doc.XZ_Plane, [""])
sketch11.MapMode = "FlatFace"
sketch11.AttachmentOffset = App.Placement(App.Vector(0, 0, -10.5), App.Rotation())
sketch11.addGeometry(Part.Circle(App.Vector(5.2, 0, 0), App.Vector(0, 0, 1), 1.2), False)
sketch11.addGeometry(Part.Circle(App.Vector(5.2, 0, 0), App.Vector(0, 0, 1), 0.8), False)
sketch11.addConstraint(Sketcher.Constraint("Coincident", 1, 3, 0, 3))
sketch11.addConstraint(Sketcher.Constraint("PointOnObject", 0, 3, -1))
sketch11.addConstraint(Sketcher.Constraint("Diameter", 0, 2.5))
sketch11.addConstraint(Sketcher.Constraint("Diameter", 1, 1.5))
sketch11.addConstraint(Sketcher.Constraint("DistanceX", -1, 1, 0, 3, 5.25))
sketch11.setExpression("Constraints[2]", "Params.sketch11_diameter")
sketch11.setExpression("Constraints[3]", "Params.sketch11_diameter2")
pad7 = doc.addObject("PartDesign::Pad", "Pad006")
body.addObject(pad7)
pad7.Profile = sketch11
pad7.setExpression("Length", "Params.pad7_length")
pad7.Reversed = True

# Sketch on XZ plane
sketch12 = doc.addObject("Sketcher::SketchObject", "Sketch011")
body.addObject(sketch12)
sketch12.AttachmentSupport = (doc.XZ_Plane, [""])
sketch12.MapMode = "FlatFace"
sketch12.AttachmentOffset = App.Placement(App.Vector(0, 0, -12), App.Rotation())
sketch12.addGeometry(Part.LineSegment(App.Vector(4.7, -0.5, 0), App.Vector(4.1, -0.5, 0)), False)
sketch12.addGeometry(Part.ArcOfCircle(Part.Circle(App.Vector(5.3, 0, 0), App.Vector(0, 0, 1), 1.3), math.radians(156), math.radians(204)), False)
sketch12.addGeometry(Part.LineSegment(App.Vector(4.1, 0.5, 0), App.Vector(4.7, 0.5, 0)), False)
sketch12.addGeometry(Part.ArcOfCircle(Part.Circle(App.Vector(5.2, 0, 0), App.Vector(0, 0, 1), 0.7), math.radians(138), math.radians(222)), False)
sketch12.addConstraint(Sketcher.Constraint("Coincident", 0, 2, 1, 2))
sketch12.addConstraint(Sketcher.Constraint("Coincident", 1, 1, 2, 1))
sketch12.addConstraint(Sketcher.Constraint("Coincident", 2, 2, 3, 1))
sketch12.addConstraint(Sketcher.Constraint("Coincident", 3, 2, 0, 1))
sketch12.addConstraint(Sketcher.Constraint("Horizontal", 0))
sketch12.addConstraint(Sketcher.Constraint("Horizontal", 2))
sketch12.addConstraint(Sketcher.Constraint("Coincident", 3, 3, 1, 3))
sketch12.addConstraint(Sketcher.Constraint("Symmetric", 0, 2, 1, 1, -1))
sketch12.addConstraint(Sketcher.Constraint("Radius", 1, 1.25))
sketch12.addConstraint(Sketcher.Constraint("Radius", 3, 0.75))
sketch12.addConstraint(Sketcher.Constraint("DistanceY", 0, 2, 1, 1, 1.0))
sketch12.addConstraint(Sketcher.Constraint("DistanceX", -1, 1, 1, 3, 5.25))
sketch12.setExpression("Constraints[8]", "Params.sketch12_radius")
sketch12.setExpression("Constraints[9]", "Params.sketch12_radius2")
pocket5 = doc.addObject("PartDesign::Pocket", "Pocket004")
body.addObject(pocket5)
pocket5.Profile = sketch12
pocket5.setExpression("Length", "Params.pocket5_length")
pocket5.Reversed = True

doc.recompute()
